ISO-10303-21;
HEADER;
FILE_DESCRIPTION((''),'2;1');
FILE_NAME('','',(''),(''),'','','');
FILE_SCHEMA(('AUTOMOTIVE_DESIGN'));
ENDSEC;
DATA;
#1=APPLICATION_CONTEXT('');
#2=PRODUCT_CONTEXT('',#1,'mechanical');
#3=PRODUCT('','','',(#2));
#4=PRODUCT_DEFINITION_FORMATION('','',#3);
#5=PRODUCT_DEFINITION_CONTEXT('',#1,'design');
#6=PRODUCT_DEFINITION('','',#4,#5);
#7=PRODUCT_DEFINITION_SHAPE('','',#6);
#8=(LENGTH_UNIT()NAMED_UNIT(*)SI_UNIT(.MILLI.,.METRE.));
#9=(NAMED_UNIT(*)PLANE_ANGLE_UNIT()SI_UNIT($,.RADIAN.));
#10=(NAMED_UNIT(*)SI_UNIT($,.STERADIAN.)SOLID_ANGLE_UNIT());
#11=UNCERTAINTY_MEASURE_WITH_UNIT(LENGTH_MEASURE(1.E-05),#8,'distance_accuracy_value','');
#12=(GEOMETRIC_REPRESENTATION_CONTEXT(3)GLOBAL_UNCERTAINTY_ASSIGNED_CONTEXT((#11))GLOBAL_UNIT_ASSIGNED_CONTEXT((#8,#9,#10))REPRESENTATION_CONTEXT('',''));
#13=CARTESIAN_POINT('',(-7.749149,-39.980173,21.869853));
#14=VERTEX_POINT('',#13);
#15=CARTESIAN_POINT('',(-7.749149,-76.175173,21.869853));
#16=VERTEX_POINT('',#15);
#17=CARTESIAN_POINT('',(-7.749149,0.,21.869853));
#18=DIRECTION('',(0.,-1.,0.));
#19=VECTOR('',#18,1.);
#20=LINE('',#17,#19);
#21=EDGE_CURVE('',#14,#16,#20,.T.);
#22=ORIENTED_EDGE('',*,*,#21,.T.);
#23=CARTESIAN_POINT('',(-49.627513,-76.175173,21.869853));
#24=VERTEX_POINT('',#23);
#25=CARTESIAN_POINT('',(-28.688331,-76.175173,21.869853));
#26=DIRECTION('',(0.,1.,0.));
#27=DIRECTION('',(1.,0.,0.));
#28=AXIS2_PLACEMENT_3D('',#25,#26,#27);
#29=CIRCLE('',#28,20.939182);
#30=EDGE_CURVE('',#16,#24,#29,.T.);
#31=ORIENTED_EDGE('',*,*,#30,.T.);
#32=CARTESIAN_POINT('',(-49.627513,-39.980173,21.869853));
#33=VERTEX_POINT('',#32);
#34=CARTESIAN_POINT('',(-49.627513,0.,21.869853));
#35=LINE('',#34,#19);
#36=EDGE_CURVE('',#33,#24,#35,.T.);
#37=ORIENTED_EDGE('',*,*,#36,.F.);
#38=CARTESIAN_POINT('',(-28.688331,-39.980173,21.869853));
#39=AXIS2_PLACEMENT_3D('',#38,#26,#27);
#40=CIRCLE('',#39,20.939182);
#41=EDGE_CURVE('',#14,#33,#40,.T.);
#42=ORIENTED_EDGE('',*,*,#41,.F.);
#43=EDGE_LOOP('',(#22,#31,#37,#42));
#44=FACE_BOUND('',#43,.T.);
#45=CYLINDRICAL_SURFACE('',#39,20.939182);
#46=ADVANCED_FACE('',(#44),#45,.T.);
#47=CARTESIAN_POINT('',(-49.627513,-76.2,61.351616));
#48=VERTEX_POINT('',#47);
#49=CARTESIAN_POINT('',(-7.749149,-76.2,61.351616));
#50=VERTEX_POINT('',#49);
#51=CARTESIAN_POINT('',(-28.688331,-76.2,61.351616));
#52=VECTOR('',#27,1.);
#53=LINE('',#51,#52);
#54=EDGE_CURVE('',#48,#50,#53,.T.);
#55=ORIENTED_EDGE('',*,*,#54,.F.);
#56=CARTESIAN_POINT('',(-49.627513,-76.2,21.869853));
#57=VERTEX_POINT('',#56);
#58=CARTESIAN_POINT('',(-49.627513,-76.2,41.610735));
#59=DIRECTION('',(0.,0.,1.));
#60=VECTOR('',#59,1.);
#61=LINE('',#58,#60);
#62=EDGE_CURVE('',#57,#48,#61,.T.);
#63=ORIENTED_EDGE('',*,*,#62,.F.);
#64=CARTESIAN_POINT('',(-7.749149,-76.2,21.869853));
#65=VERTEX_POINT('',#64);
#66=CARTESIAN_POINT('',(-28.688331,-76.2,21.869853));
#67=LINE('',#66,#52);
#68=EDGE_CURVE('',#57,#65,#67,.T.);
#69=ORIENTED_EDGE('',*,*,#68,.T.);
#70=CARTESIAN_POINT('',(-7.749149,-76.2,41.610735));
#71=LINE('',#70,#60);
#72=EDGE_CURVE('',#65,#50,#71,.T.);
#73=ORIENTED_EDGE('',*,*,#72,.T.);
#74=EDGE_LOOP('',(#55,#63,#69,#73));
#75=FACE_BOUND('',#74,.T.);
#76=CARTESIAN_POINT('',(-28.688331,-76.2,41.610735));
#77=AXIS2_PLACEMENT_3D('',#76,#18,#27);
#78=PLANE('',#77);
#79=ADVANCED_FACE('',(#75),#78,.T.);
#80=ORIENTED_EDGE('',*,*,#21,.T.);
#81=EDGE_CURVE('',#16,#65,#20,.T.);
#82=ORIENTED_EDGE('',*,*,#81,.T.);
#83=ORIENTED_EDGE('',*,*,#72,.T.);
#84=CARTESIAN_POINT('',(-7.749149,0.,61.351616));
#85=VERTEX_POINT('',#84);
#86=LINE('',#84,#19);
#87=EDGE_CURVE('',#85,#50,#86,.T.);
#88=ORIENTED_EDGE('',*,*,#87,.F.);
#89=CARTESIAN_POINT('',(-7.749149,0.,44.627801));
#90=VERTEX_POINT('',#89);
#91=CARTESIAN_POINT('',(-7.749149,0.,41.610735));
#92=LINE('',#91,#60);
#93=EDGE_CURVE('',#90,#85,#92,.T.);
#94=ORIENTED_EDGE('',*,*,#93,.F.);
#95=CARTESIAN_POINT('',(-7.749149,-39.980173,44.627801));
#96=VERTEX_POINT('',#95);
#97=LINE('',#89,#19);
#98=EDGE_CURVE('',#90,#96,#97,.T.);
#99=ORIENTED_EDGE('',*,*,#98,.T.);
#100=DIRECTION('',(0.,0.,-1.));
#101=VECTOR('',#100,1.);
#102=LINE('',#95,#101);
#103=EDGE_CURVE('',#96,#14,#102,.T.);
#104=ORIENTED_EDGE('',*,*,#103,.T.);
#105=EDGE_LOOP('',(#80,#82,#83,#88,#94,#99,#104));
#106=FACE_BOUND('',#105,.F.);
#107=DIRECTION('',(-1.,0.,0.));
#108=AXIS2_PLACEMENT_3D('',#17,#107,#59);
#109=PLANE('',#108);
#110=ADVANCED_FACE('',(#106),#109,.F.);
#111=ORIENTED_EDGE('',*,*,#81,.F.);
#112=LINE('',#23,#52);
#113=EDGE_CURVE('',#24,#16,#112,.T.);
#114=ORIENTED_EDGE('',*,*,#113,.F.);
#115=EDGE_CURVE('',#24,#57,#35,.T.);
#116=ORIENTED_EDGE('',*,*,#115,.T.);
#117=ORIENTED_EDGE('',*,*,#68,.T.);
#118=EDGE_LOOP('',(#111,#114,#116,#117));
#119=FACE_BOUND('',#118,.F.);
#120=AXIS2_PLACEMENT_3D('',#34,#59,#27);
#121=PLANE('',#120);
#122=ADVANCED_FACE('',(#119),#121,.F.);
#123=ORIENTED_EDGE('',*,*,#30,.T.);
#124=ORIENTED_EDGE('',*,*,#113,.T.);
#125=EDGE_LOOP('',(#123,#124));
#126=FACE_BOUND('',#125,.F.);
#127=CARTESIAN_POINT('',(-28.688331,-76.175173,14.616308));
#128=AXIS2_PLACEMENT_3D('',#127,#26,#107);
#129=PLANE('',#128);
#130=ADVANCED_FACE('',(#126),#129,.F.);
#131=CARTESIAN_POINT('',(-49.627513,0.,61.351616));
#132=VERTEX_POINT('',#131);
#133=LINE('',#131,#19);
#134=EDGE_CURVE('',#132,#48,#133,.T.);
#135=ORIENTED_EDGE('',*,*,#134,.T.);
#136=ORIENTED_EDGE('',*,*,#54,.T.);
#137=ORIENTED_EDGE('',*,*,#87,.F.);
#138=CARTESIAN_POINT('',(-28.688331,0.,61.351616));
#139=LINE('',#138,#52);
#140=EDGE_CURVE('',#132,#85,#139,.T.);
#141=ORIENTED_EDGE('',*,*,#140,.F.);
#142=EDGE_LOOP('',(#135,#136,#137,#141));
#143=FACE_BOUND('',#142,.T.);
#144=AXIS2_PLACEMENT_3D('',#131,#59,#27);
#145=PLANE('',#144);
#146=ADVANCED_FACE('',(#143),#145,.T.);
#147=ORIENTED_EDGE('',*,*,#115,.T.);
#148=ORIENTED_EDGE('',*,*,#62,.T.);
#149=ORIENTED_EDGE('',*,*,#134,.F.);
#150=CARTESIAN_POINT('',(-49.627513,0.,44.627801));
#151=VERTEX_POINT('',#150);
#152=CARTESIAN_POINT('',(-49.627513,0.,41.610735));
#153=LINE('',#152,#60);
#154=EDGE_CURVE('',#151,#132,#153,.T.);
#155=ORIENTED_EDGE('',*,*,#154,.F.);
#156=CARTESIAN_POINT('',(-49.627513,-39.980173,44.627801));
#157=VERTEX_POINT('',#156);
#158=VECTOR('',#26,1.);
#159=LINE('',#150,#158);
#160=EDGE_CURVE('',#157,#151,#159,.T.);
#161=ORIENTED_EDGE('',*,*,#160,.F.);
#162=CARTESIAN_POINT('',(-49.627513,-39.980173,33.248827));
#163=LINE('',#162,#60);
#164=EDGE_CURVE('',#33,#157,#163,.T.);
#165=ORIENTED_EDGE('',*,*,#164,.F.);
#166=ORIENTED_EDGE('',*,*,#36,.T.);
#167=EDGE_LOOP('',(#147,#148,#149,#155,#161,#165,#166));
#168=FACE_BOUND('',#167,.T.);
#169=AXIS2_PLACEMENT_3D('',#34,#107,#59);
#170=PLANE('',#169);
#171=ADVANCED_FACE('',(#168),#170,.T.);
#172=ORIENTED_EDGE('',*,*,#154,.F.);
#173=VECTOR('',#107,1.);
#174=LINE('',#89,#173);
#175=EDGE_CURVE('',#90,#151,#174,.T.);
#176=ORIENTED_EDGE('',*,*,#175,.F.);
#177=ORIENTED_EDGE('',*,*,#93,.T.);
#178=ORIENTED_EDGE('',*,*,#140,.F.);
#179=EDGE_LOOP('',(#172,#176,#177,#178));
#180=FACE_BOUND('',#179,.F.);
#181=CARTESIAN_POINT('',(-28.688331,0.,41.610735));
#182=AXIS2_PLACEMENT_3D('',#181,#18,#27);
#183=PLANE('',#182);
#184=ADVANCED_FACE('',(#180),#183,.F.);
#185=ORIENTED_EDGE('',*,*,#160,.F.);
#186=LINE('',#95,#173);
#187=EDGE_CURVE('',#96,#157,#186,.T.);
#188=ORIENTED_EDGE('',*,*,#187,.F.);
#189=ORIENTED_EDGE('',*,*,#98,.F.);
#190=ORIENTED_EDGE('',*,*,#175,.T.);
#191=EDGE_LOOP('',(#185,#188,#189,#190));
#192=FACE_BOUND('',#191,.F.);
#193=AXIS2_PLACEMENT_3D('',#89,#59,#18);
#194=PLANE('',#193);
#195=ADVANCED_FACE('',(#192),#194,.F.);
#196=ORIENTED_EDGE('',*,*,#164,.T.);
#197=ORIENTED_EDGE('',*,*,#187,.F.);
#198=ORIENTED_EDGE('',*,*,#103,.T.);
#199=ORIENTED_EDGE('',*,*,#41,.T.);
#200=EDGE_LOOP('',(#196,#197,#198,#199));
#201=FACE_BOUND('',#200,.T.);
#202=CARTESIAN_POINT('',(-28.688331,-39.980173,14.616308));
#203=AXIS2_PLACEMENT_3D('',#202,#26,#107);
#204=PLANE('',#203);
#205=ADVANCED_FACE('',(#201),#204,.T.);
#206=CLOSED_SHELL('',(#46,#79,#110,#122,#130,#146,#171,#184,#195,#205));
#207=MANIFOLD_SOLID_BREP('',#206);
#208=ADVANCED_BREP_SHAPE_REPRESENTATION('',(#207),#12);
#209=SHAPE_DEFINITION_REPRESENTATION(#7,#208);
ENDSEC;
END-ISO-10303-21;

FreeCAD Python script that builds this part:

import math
import FreeCAD as App
import Part
import Sketcher
from FreeCAD import Vector
Q = App.Units.Quantity


def add_polygon(sketch, points):
    """Adds a closed chain of lines whose ends are joined by coincident constraints."""
    first, n = sketch.GeometryCount, len(points)
    for a, b in zip(points, points[1:] + points[:1]):
        sketch.addGeometry(Part.LineSegment(App.Vector(*a, 0), App.Vector(*b, 0)), False)
    for i in range(n):
        sketch.addConstraint(Sketcher.Constraint("Coincident", first + i, 2, first + (i + 1) % n, 1))

doc = App.newDocument("Part")
body = doc.addObject("PartDesign::Body", "Body")

sketch1 = body.newObject("Sketcher::SketchObject", "Sketch")
sketch1.AttachmentSupport = (doc.getObject("XZ_Plane"), [""])
sketch1.MapMode = "FlatFace"
add_polygon(sketch1, [(-50, 61), (-50, 22), (-8, 22), (-8, 61)])
sketch1.addConstraint([
    Sketcher.Constraint("Vertical", 0),
    Sketcher.Constraint("Horizontal", 1),
    Sketcher.Constraint("Vertical", 2),
    Sketcher.Constraint("Horizontal", 3),
    Sketcher.Constraint("DistanceY", 0, 2, 0, 1, Q("1.5544001 in")),
    Sketcher.Constraint("DistanceX", 1, 1, 1, 2, Q("41.878364 mm")),
    Sketcher.Constraint("DistanceX", 1, 2, -1, 1, Q("7.749149 mm")),
    Sketcher.Constraint("DistanceY", -1, 1, 0, 2, Q("21.869853 mm")),
])
pad1 = body.newObject("PartDesign::Pad", "Pad")
pad1.Profile = sketch1
pad1.Length = Q("3 in")

sketch2 = body.newObject("Sketcher::SketchObject", "Sketch001")
sketch2.AttachmentSupport = (doc.getObject("YZ_Plane"), [""])
sketch2.MapMode = "FlatFace"
sketch2.AttachmentOffset = App.Placement(Vector(0, 0, -7.749149), App.Rotation())
add_polygon(sketch2, [(0, 22), (-40, 45), (-40, 22)])
sketch2.addConstraint([
    Sketcher.Constraint("Vertical", 1),
    Sketcher.Constraint("Horizontal", 2),
    Sketcher.Constraint("PointOnObject", 2, 2, -2),
    Sketcher.Constraint("DistanceY", -1, 1, 0, 2, Q("1.757 in")),
    Sketcher.Constraint("Distance", 0, Q("46.003678 mm")),
    Sketcher.Constraint("DistanceX", 2, 1, 2, 2, Q("39.980173 mm")),
])
pocket1 = body.newObject("PartDesign::Pocket", "Pocket")
pocket1.Profile = sketch2
pocket1.Length = Q("3 in")

sketch3 = body.newObject("Sketcher::SketchObject", "Sketch002")
sketch3.AttachmentSupport = (doc.getObject("XZ_Plane"), [""])
sketch3.MapMode = "FlatFace"
sketch3.AttachmentOffset = App.Placement(Vector(0, 0, 39.980173), App.Rotation())
sketch3.addGeometry([
    Part.LineSegment(Vector(-50, 22, 0), Vector(-8, 22, 0)),
    Part.ArcOfCircle(Part.Circle(Vector(-29, 22, 0), Vector(0, 0, 1), 21), math.radians(180), math.radians(360)),
], False)
sketch3.addConstraint([
    Sketcher.Constraint("Coincident", 0, 1, 1, 1),
    Sketcher.Constraint("Coincident", 1, 2, 0, 2),
    Sketcher.Constraint("Horizontal", 0),
    Sketcher.Constraint("Horizontal", 1, 3, 0, 1),
    Sketcher.Constraint("Radius", 1, Q("20.939182 mm")),
    Sketcher.Constraint("DistanceX", 1, 3, -1, 1, Q("28.688331 mm")),
    Sketcher.Constraint("DistanceY", -1, 1, 1, 3, Q("21.869853 mm")),
])
pad2 = body.newObject("PartDesign::Pad", "Pad001")
pad2.Profile = sketch3
pad2.Length = Q("1.425 in")

sketch4 = body.newObject("Sketcher::SketchObject", "Sketch003")
sketch4.AttachmentSupport = (doc.getObject("YZ_Plane"), [""])
sketch4.MapMode = "FlatFace"
sketch4.AttachmentOffset = App.Placement(Vector(0, 0, -7.749149), App.Rotation())
add_polygon(sketch4, [(0, 45), (-40, 45), (0, 22)])
sketch4.addConstraint([
    Sketcher.Constraint("Horizontal", 0),
    Sketcher.Constraint("Vertical", 2),
    Sketcher.Constraint("PointOnObject", 1, 2, -2),
    Sketcher.Constraint("DistanceY", -1, 1, 0, 2, Q("1.757 in")),
    Sketcher.Constraint("Distance", 1, Q("46.003678 mm")),
    Sketcher.Constraint("DistanceX", 0, 2, 0, 1, Q("39.980173 mm")),
])
pocket2 = body.newObject("PartDesign::Pocket", "Pocket001")
pocket2.Profile = sketch4
pocket2.Length = Q("3 in")

doc.recompute()
